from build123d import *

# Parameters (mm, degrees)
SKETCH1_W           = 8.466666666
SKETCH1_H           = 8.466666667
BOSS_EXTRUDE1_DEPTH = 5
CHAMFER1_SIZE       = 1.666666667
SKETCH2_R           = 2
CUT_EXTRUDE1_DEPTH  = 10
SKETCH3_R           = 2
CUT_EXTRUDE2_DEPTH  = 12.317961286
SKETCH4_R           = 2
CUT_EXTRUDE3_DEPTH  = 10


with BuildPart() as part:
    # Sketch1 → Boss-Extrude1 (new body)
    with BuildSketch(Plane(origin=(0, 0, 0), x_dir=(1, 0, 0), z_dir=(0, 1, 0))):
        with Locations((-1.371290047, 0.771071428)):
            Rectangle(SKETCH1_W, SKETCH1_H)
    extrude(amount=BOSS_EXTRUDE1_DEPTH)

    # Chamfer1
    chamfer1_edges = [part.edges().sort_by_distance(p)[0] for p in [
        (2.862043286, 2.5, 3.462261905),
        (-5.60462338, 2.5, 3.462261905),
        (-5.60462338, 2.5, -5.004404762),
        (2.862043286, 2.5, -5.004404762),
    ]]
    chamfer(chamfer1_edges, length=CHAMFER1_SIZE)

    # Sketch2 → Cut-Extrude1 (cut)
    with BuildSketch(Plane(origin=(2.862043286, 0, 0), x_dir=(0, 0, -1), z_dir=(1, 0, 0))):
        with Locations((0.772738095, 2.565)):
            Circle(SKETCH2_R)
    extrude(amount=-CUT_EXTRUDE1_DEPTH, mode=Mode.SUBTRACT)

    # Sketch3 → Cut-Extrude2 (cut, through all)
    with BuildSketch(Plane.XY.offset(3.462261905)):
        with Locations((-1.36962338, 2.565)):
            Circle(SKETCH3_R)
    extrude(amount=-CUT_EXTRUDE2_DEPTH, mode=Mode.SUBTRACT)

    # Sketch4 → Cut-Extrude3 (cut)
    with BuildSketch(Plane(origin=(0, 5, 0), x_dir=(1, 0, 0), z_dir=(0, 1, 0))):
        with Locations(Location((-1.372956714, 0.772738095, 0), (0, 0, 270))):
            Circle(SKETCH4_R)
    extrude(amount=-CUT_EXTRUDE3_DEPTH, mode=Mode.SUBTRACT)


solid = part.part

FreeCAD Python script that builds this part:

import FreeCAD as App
import Part
import Sketcher


def edges_at(feature, points):
    """Names of the edges that pass closest to the given points."""
    edges = feature.Shape.Edges
    near = lambda p: min(range(len(edges)), key=lambda i: edges[i].distToShape(Part.Vertex(*p))[0])
    return sorted({f"Edge{near(p) + 1}" for p in points})


def add_polygon(sketch, points):
    """Adds a closed chain of lines whose ends are joined by coincident constraints."""
    first, n = sketch.GeometryCount, len(points)
    for a, b in zip(points, points[1:] + points[:1]):
        sketch.addGeometry(Part.LineSegment(App.Vector(*a, 0), App.Vector(*b, 0)), False)
    for i in range(n):
        sketch.addConstraint(Sketcher.Constraint("Coincident", first + i, 2, first + (i + 1) % n, 1))

doc = App.newDocument("Part")
body = doc.addObject("PartDesign::Body", "Body")

# Sketch on XZ plane
sketch1 = body.newObject("Sketcher::SketchObject", "Sketch")
sketch1.AttachmentSupport = (doc.getObject("XZ_Plane"), [""])
sketch1.MapMode = "FlatFace"
add_polygon(sketch1, [(-6, -5), (-6, 3), (3, 3), (3, -5)])  # lines 0-3
sketch1.addConstraint([
    Sketcher.Constraint("Vertical", 0),
    Sketcher.Constraint("Horizontal", 1),
    Sketcher.Constraint("Vertical", 2),
    Sketcher.Constraint("Horizontal", 3),
    Sketcher.Constraint("Equal", 3, 0),
    Sketcher.Constraint("DistanceX", 1, 1, 1, 2, 8.466667),
    Sketcher.Constraint("DistanceY", -1, 1, 0, 2, 3.462262),
    Sketcher.Constraint("DistanceX", 0, 2, -1, 1, 5.604623),
])
pad1 = body.newObject("PartDesign::Pad", "Pad")
pad1.Profile = sketch1
pad1.Length = 5
pad1.Reversed = True
doc.recompute()

chamfer = body.newObject("PartDesign::Chamfer", "Chamfer")
chamfer.Base = (pad1, edges_at(pad1, [
    (2.862, 2.5, 3.462),
    (-5.605, 2.5, 3.462),
    (-5.605, 2.5, -5.004),
    (2.862, 2.5, -5.004),
]))
chamfer.Size = 1.666667

# Sketch on YZ plane
sketch2 = body.newObject("Sketcher::SketchObject", "Sketch001")
sketch2.AttachmentSupport = (doc.getObject("YZ_Plane"), [""])
sketch2.MapMode = "FlatFace"
sketch2.AttachmentOffset = App.Placement(App.Vector(0, 0, 2.862043), App.Rotation())
sketch2.addGeometry(Part.Circle(App.Vector(2.6, -0.8, 0), App.Vector(0, 0, 1), 2), False)
sketch2.addConstraint([
    Sketcher.Constraint("Diameter", 0, 4.0),
    Sketcher.Constraint("DistanceX", -1, 1, 0, 3, 2.565),
    Sketcher.Constraint("DistanceY", 0, 3, -1, 1, 0.772738),
])
pocket1 = body.newObject("PartDesign::Pocket", "Pocket")
pocket1.Profile = sketch2
pocket1.Length = 10

# Sketch on XY plane
sketch3 = body.newObject("Sketcher::SketchObject", "Sketch002")
sketch3.AttachmentSupport = (doc.getObject("XY_Plane"), [""])
sketch3.MapMode = "FlatFace"
sketch3.AttachmentOffset = App.Placement(App.Vector(0, 0, 3.462262), App.Rotation())
sketch3.addGeometry(Part.Circle(App.Vector(-1.4, 2.6, 0), App.Vector(0, 0, 1), 2), False)
sketch3.addConstraint([
    Sketcher.Constraint("Diameter", 0, 4.0),
    Sketcher.Constraint("DistanceY", -1, 1, 0, 3, 2.565),
    Sketcher.Constraint("DistanceX", 0, 3, -1, 1, 1.369623),
])
pocket2 = body.newObject("PartDesign::Pocket", "Pocket001")
pocket2.Profile = sketch3
pocket2.Type = "ThroughAll"

# Sketch on XZ plane
sketch4 = body.newObject("Sketcher::SketchObject", "Sketch003")
sketch4.AttachmentSupport = (doc.getObject("XZ_Plane"), [""])
sketch4.MapMode = "FlatFace"
sketch4.AttachmentOffset = App.Placement(App.Vector(0, 0, -5), App.Rotation())
sketch4.addGeometry(Part.Circle(App.Vector(-1.4, -0.8, 0), App.Vector(0, 0, 1), 2), False)
sketch4.addConstraint([
    Sketcher.Constraint("Diameter", 0, 4.0),
    Sketcher.Constraint("DistanceY", 0, 3, -1, 1, 0.772738),
    Sketcher.Constraint("DistanceX", 0, 3, -1, 1, 1.372957),
])
pocket3 = body.newObject("PartDesign::Pocket", "Pocket002")
pocket3.Profile = sketch4
pocket3.Length = 10
pocket3.Reversed = True

doc.recompute()
